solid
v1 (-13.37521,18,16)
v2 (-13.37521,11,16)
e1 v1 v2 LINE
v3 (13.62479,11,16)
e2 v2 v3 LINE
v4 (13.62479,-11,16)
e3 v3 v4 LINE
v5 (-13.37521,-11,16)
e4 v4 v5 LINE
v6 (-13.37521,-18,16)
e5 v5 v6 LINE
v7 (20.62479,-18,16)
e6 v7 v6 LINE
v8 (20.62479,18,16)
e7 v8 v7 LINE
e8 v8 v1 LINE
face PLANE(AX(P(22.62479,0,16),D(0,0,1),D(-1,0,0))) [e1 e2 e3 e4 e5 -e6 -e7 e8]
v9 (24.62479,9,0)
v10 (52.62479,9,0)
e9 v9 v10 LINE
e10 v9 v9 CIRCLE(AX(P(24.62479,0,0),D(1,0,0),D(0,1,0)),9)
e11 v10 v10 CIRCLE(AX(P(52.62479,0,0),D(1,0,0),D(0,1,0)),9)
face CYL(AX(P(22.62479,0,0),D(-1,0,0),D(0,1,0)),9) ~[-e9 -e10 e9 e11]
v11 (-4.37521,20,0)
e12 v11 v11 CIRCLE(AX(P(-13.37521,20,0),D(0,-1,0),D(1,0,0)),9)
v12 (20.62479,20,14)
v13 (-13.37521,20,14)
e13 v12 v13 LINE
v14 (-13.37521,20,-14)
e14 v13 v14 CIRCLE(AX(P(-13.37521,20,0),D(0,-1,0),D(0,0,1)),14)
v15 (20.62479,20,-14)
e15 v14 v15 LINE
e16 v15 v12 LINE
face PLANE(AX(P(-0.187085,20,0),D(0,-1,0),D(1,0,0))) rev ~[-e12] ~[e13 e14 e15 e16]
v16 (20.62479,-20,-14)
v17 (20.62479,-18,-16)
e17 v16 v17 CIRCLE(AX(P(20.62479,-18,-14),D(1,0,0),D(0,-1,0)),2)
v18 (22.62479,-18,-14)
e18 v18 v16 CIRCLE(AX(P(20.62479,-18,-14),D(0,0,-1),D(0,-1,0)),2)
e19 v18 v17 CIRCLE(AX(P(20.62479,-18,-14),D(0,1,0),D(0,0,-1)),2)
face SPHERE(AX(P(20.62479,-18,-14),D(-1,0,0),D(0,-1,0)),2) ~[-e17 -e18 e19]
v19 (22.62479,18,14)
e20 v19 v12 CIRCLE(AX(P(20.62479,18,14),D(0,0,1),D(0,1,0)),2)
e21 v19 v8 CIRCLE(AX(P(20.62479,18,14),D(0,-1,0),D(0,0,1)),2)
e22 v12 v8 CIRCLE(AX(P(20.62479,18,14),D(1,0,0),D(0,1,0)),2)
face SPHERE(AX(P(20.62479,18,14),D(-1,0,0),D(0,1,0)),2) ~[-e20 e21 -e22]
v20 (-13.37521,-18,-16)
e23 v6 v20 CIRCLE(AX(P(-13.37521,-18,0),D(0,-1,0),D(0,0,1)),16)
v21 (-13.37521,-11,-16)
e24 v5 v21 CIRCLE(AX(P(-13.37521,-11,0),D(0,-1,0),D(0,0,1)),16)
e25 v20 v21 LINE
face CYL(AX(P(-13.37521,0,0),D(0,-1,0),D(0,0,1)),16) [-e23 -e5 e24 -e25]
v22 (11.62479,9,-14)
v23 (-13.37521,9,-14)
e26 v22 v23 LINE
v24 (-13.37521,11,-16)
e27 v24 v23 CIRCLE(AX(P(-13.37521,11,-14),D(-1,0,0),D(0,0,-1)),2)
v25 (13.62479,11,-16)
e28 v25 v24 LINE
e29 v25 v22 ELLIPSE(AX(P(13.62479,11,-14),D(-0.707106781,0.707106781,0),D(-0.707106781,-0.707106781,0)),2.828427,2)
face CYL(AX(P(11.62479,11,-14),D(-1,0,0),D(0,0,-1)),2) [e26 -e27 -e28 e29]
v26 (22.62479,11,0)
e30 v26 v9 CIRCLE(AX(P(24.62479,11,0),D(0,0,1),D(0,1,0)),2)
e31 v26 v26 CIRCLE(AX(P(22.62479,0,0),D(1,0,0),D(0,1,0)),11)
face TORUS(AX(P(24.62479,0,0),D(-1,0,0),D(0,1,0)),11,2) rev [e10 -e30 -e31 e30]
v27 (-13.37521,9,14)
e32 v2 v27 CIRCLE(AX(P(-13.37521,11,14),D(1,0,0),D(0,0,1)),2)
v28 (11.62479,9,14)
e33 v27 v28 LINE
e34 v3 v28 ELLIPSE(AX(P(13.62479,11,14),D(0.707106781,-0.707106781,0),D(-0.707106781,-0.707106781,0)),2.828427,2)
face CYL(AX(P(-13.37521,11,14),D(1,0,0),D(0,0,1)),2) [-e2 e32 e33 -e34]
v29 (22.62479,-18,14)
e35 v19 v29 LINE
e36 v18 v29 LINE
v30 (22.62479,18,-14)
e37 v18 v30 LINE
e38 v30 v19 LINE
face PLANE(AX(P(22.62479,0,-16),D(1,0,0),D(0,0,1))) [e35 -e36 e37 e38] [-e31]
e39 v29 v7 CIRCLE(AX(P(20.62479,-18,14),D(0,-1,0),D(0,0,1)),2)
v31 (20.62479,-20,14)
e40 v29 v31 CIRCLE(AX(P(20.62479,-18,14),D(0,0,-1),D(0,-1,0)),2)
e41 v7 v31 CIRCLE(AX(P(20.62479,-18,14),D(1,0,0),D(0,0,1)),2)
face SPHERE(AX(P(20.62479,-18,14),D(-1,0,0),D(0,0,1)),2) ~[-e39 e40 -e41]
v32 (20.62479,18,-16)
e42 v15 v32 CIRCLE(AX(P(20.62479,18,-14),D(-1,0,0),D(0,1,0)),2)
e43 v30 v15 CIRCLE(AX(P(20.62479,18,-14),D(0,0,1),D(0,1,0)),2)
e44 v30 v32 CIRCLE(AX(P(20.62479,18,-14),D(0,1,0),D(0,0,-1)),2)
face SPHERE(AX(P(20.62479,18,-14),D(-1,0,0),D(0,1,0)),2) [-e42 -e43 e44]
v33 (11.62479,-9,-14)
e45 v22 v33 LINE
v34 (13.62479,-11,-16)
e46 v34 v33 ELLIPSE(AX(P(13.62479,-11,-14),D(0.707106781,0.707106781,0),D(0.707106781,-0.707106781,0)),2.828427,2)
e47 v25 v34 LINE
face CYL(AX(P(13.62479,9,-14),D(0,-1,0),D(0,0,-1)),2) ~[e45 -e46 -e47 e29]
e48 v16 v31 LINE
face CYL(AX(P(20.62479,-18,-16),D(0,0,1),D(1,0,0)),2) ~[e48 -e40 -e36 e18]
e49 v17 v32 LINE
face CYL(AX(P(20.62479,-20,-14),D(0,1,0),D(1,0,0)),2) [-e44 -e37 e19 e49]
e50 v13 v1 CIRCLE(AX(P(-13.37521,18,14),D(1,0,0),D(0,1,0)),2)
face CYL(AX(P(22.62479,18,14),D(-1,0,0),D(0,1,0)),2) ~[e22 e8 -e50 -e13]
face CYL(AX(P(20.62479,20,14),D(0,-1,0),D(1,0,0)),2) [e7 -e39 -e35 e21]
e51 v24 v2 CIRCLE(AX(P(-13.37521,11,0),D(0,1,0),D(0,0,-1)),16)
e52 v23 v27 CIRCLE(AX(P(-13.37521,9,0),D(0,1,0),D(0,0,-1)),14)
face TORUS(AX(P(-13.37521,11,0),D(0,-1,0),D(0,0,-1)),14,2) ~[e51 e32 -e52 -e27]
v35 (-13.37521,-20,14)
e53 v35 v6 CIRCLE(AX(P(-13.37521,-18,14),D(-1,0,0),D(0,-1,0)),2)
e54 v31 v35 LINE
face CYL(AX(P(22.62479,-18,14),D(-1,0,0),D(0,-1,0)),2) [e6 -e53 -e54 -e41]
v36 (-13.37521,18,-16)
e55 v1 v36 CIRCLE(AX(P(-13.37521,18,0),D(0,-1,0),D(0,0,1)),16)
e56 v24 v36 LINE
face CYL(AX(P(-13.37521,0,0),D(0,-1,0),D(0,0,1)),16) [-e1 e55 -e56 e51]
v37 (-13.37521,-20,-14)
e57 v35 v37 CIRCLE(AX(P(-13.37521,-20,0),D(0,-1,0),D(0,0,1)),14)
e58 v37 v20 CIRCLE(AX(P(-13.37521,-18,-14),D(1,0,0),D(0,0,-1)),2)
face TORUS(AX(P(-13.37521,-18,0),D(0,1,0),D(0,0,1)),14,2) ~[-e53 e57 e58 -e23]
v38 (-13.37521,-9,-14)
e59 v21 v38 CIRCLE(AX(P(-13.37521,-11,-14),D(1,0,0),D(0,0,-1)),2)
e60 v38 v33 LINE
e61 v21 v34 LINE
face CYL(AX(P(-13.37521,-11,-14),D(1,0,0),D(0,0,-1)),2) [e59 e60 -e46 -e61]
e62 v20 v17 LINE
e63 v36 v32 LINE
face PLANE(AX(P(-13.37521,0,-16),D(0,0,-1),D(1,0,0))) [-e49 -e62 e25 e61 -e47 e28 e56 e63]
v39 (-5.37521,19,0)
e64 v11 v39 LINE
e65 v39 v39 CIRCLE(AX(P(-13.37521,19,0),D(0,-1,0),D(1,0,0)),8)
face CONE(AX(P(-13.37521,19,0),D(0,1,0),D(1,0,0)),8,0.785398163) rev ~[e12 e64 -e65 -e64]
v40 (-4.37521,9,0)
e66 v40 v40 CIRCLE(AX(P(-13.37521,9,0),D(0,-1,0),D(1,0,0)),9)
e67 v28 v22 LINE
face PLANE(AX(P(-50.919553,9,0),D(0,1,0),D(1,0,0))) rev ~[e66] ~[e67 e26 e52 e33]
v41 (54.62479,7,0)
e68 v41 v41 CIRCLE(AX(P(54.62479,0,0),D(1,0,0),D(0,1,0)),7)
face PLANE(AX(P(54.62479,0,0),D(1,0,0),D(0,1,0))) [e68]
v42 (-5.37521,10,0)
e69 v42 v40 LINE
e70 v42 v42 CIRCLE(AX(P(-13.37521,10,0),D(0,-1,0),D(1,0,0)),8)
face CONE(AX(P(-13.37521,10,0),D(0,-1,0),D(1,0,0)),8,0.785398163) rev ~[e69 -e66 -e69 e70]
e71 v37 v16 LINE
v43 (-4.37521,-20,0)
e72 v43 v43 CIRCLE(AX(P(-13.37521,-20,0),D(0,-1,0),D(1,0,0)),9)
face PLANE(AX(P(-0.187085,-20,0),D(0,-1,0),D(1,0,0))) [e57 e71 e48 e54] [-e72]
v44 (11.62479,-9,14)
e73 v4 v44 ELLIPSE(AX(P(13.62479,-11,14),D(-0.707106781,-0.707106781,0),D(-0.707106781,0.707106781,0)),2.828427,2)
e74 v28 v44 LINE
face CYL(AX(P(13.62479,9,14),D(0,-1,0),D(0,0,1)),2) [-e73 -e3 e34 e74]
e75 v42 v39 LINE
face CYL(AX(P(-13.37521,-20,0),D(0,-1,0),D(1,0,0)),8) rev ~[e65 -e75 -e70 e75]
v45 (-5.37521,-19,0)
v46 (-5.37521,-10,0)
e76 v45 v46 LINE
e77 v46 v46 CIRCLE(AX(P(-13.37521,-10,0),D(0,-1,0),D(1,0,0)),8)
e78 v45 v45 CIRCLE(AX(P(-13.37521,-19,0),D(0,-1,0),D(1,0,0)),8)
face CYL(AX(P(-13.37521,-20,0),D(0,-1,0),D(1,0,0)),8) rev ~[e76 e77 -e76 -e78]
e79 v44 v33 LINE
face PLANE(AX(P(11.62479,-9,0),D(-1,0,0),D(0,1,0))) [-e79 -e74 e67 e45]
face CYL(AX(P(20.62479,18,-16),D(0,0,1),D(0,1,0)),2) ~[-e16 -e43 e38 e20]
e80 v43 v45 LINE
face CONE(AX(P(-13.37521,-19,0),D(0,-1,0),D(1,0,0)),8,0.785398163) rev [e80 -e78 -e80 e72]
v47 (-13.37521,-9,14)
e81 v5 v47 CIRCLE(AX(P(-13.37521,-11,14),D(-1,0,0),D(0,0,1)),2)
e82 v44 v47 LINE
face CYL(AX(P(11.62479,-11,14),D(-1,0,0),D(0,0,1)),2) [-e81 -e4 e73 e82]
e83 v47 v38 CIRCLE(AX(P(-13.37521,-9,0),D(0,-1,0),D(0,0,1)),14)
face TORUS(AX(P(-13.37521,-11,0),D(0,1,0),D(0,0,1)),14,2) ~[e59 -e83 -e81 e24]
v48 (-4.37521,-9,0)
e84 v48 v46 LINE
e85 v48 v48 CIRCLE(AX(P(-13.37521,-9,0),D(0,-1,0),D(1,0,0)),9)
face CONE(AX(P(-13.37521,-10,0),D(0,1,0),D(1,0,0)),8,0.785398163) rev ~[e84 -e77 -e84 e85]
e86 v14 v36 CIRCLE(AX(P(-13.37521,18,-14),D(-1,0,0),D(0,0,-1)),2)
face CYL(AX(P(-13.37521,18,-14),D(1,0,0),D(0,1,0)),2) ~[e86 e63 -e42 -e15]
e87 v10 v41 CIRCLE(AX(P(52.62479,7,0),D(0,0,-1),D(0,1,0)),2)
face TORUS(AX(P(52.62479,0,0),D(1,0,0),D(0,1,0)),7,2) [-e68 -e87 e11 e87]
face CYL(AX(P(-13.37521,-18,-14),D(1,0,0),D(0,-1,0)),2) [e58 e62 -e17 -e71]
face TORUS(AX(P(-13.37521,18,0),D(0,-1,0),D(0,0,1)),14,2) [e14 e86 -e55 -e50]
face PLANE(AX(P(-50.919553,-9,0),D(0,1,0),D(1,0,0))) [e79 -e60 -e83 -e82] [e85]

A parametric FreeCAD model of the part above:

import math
import FreeCAD as App
import Part
import Sketcher

V = App.Vector
Q = App.Units.Quantity


def edges_at(feature, points):
    """Names of the edges that pass closest to the given points."""
    edges = feature.Shape.Edges
    near = lambda p: min(range(len(edges)), key=lambda i: edges[i].distToShape(Part.Vertex(*p))[0])
    return sorted({f"Edge{near(p) + 1}" for p in points})


def add_polygon(sketch, points):
    """Adds a closed chain of lines whose ends are joined by coincident constraints."""
    first, n = sketch.GeometryCount, len(points)
    for a, b in zip(points, points[1:] + points[:1]):
        sketch.addGeometry(Part.LineSegment(App.Vector(*a, 0), App.Vector(*b, 0)), False)
    for i in range(n):
        sketch.addConstraint(Sketcher.Constraint("Coincident", first + i, 2, first + (i + 1) % n, 1))

doc = App.newDocument("Part")
params = doc.addObject("Spreadsheet::Sheet", "Params")
for row, (alias, value) in enumerate([
    ("sketch1_radius", "16 mm"),
    ("sketch1_width", "36 mm"),
    ("pad1_length", "20 mm"),
    ("pad1_length2", "20 mm"),
    ("sketch2_diameter", "16 mm"),
    ("sketch3_height", "18 mm"),
    ("sketch4_diameter", "18 mm"),
    ("pad2_length", "32 mm"),
    ("chamfer_size", "1 mm"),
    ("fillet_radius", "2 mm"),
], start=1):
    params.set(f"A{row}", alias)
    params.set(f"B{row}", "=" + value)
    params.setAlias(f"B{row}", alias)

body = doc.addObject("PartDesign::Body", "Body")

sketch1 = body.newObject("Sketcher::SketchObject", "Sketch")
sketch1.AttachmentSupport = (doc.getObject("XZ_Plane"), [""])
sketch1.MapMode = "FlatFace"
sketch1.addGeometry(Part.LineSegment(V(23, -16, 0), V(23, 16, 0)), False)
sketch1.addGeometry(Part.LineSegment(V(23, 16, 0), V(-13, 16, 0)), False)
sketch1.addGeometry(Part.ArcOfCircle(Part.Circle(V(-13, 0, 0), V(0, 0, 1), 16), math.radians(90), math.radians(270)), False)
sketch1.addGeometry(Part.LineSegment(V(-13, -16, 0), V(23, -16, 0)), False)
sketch1.addConstraint(Sketcher.Constraint("Coincident", 0, 2, 1, 1))
sketch1.addConstraint(Sketcher.Constraint("Tangent", 1, 2, 2, 1))
sketch1.addConstraint(Sketcher.Constraint("Tangent", 2, 2, 3, 1))
sketch1.addConstraint(Sketcher.Constraint("Coincident", 3, 2, 0, 1))
sketch1.addConstraint(Sketcher.Constraint("Vertical", 0))
sketch1.addConstraint(Sketcher.Constraint("Horizontal", 1))
sketch1.addConstraint(Sketcher.Constraint("Horizontal", 3))
sketch1.addConstraint(Sketcher.Constraint("PointOnObject", 2, 3, -1))
sketch1.addConstraint(Sketcher.Constraint("Radius", 2, Q("16 mm")))
sketch1.addConstraint(Sketcher.Constraint("DistanceX", 1, 2, 1, 1, Q("36 mm")))
sketch1.addConstraint(Sketcher.Constraint("DistanceX", 2, 3, -1, 1, Q("13.37521 mm")))
sketch1.setExpression("Constraints[8]", "Params.sketch1_radius")
sketch1.setExpression("Constraints[9]", "Params.sketch1_width")
pad1 = body.newObject("PartDesign::Pad", "Pad")
pad1.Profile = sketch1
pad1.Type = "TwoLengths"
pad1.setExpression("Length", "Params.pad1_length")
pad1.setExpression("Length2", "Params.pad1_length2")

sketch2 = body.newObject("Sketcher::SketchObject", "Sketch001")
sketch2.AttachmentSupport = (doc.getObject("XZ_Plane"), [""])
sketch2.MapMode = "FlatFace"
sketch2.AttachmentOffset = App.Placement(V(0, 0, 20), App.Rotation())
sketch2.addGeometry(Part.Circle(V(-13, 0, 0), V(0, 0, 1), 8), False)
sketch2.addConstraint(Sketcher.Constraint("PointOnObject", 0, 3, -1))
sketch2.addConstraint(Sketcher.Constraint("Diameter", 0, Q("16 mm")))
sketch2.addConstraint(Sketcher.Constraint("DistanceX", 0, 3, -1, 1, Q("13.37521 mm")))
sketch2.setExpression("Constraints[1]", "Params.sketch2_diameter")
pocket1 = body.newObject("PartDesign::Pocket", "Pocket")
pocket1.Profile = sketch2
pocket1.Type = "ThroughAll"

sketch3 = body.newObject("Sketcher::SketchObject", "Sketch002")
sketch3.AttachmentSupport = (doc.getObject("XY_Plane"), [""])
sketch3.MapMode = "FlatFace"
add_polygon(sketch3, [(-51, 9), (-51, -9), (12, -9), (12, 9)])
sketch3.addConstraint(Sketcher.Constraint("Vertical", 0))
sketch3.addConstraint(Sketcher.Constraint("Horizontal", 1))
sketch3.addConstraint(Sketcher.Constraint("Vertical", 2))
sketch3.addConstraint(Sketcher.Constraint("Horizontal", 3))
sketch3.addConstraint(Sketcher.Constraint("DistanceY", 0, 2, 0, 1, Q("18 mm")))
sketch3.addConstraint(Sketcher.Constraint("DistanceY", 0, 2, -1, 1, Q("9 mm")))
sketch3.addConstraint(Sketcher.Constraint("DistanceX", 1, 1, 1, 2, Q("62.544343 mm")))
sketch3.addConstraint(Sketcher.Constraint("DistanceX", -1, 1, 1, 2, Q("11.62479 mm")))
sketch3.setExpression("Constraints[8]", "Params.sketch3_height")
pocket2 = body.newObject("PartDesign::Pocket", "Pocket001")
pocket2.Profile = sketch3
pocket2.Type = "ThroughAll"
pocket2.Midplane = True

sketch4 = body.newObject("Sketcher::SketchObject", "Sketch003")
sketch4.AttachmentSupport = (doc.getObject("YZ_Plane"), [""])
sketch4.MapMode = "FlatFace"
sketch4.AttachmentOffset = App.Placement(V(0, 0, 22.62479), App.Rotation())
sketch4.addGeometry(Part.Circle(V(0, 0, 0), V(0, 0, 1), 9), False)
sketch4.addConstraint(Sketcher.Constraint("Coincident", 0, 3, -1, 1))
sketch4.addConstraint(Sketcher.Constraint("Diameter", 0, Q("18 mm")))
sketch4.setExpression("Constraints[1]", "Params.sketch4_diameter")
pad2 = body.newObject("PartDesign::Pad", "Pad001")
pad2.Profile = sketch4
pad2.setExpression("Length", "Params.pad2_length")
doc.recompute()

chamfer = body.newObject("PartDesign::Chamfer", "Chamfer")
chamfer.Base = (pad2, edges_at(pad2, [
    (-21.375, -20, 0),
    (-21.375, 20, 0),
    (-21.375, -9, 0),
    (-21.375, 9, 0),
]))
chamfer.setExpression("Size", "Params.chamfer_size")
doc.recompute()

fillet = body.newObject("PartDesign::Fillet", "Fillet")
fillet.Base = (chamfer, edges_at(chamfer, [
    (-29.375, -20, 0),
    (-0.875, -9, 16),
    (11.625, 0, 16),
    (11.625, 0, -16),
    (-0.875, 9, -16),
    (-29.375, 20, 0),
    (22.625, 20, 0),
    (22.625, 0, 16),
    (22.625, -20, 0),
    (22.625, 0, -16),
    (54.625, -9, 0),
    (22.625, -9, 0),
]))
fillet.setExpression("Radius", "Params.fillet_radius")

doc.recompute()
